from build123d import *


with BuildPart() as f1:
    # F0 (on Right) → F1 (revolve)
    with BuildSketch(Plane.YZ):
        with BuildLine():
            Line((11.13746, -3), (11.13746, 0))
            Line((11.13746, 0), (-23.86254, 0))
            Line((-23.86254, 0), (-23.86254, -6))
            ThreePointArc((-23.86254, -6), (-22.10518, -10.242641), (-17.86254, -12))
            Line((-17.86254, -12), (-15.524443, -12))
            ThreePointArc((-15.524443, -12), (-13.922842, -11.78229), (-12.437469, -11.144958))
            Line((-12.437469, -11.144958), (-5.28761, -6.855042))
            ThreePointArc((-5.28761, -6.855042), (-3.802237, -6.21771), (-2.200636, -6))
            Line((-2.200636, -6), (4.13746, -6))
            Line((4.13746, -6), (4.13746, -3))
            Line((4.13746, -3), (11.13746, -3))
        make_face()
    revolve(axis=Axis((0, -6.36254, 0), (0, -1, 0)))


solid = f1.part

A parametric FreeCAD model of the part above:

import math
import FreeCAD as App
import Part
import Sketcher

V = App.Vector

doc = App.newDocument("Part")
body = doc.addObject("PartDesign::Body", "Body")

# Sketch on YZ plane
sketch1 = body.newObject("Sketcher::SketchObject", "Sketch")
sketch1.AttachmentSupport = (doc.getObject("YZ_Plane"), [""])
sketch1.MapMode = "FlatFace"
sketch1.addGeometry([
    Part.LineSegment(V(11.1, -3, 0), V(11.1, 0, 0)),  # 0
    Part.LineSegment(V(11.1, 0, 0), V(-23.9, 0, 0)),  # 1
    Part.LineSegment(V(-23.9, 0, 0), V(-23.9, -6, 0)),  # 2
    Part.ArcOfCircle(Part.Circle(V(-17.9, -6, 0), V(0, 0, 1), 6), math.radians(-180), math.radians(-90)),  # 3
    Part.LineSegment(V(-17.9, -12, 0), V(-15.5, -12, 0)),  # 4
    Part.ArcOfCircle(Part.Circle(V(-15.5, -6, 0), V(0, 0, 1), 6), math.radians(-90), math.radians(-59)),  # 5
    Part.LineSegment(V(-12.4, -11.1, 0), V(-5.3, -6.9, 0)),  # 6
    Part.ArcOfCircle(Part.Circle(V(-2.2, -12, 0), V(0, 0, 1), 6), math.radians(90), math.radians(121)),  # 7
    Part.LineSegment(V(-2.2, -6, 0), V(4.1, -6, 0)),  # 8
    Part.LineSegment(V(4.1, -6, 0), V(4.1, -3, 0)),  # 9
    Part.LineSegment(V(4.1, -3, 0), V(11.1, -3, 0)),  # 10
], False)
sketch1.addConstraint([
    Sketcher.Constraint("Coincident", 0, 2, 1, 1),
    Sketcher.Constraint("Coincident", 1, 2, 2, 1),
    Sketcher.Constraint("Tangent", 2, 2, 3, 1),
    Sketcher.Constraint("Tangent", 3, 2, 4, 1),
    Sketcher.Constraint("Tangent", 4, 2, 5, 1),
    Sketcher.Constraint("Tangent", 5, 2, 6, 1),
    Sketcher.Constraint("Tangent", 6, 2, 7, 2),
    Sketcher.Constraint("Tangent", 7, 1, 8, 1),
    Sketcher.Constraint("Coincident", 8, 2, 9, 1),
    Sketcher.Constraint("Coincident", 9, 2, 10, 1),
    Sketcher.Constraint("Coincident", 10, 2, 0, 1),
    Sketcher.Constraint("Vertical", 0),
    Sketcher.Constraint("Horizontal", 1),
    Sketcher.Constraint("Vertical", 2),
    Sketcher.Constraint("Horizontal", 4),
    Sketcher.Constraint("Horizontal", 8),
    Sketcher.Constraint("Vertical", 9),
    Sketcher.Constraint("Horizontal", 10),
    Sketcher.Constraint("Equal", 5, 7),
    Sketcher.Constraint("PointOnObject", 0, 2, -1),
    Sketcher.Constraint("Horizontal", 2, 2, 7, 1),
    Sketcher.Constraint("Equal", 0, 9),
    Sketcher.Constraint("Radius", 3, 6.000001),
    Sketcher.Constraint("DistanceX", 1, 2, 1, 1, 35.0),
    Sketcher.Constraint("DistanceX", 10, 1, 10, 2, 7.0),
    Sketcher.Constraint("DistanceY", 0, 1, 0, 2, 3.0),
    Sketcher.Constraint("Radius", 5, 5.999994),
    Sketcher.Constraint("DistanceX", 3, 3, 5, 3, 2.338098),
    Sketcher.Constraint("DistanceX", 3, 3, 7, 3, 15.661901),
    Sketcher.Constraint("DistanceX", 3, 3, -1, 1, 17.862539),
])
revolution = body.newObject("PartDesign::Revolution", "Revolution")
revolution.Profile = sketch1
revolution.ReferenceAxis = (sketch1, ["H_Axis"])
revolution.Angle = 360

doc.recompute()
